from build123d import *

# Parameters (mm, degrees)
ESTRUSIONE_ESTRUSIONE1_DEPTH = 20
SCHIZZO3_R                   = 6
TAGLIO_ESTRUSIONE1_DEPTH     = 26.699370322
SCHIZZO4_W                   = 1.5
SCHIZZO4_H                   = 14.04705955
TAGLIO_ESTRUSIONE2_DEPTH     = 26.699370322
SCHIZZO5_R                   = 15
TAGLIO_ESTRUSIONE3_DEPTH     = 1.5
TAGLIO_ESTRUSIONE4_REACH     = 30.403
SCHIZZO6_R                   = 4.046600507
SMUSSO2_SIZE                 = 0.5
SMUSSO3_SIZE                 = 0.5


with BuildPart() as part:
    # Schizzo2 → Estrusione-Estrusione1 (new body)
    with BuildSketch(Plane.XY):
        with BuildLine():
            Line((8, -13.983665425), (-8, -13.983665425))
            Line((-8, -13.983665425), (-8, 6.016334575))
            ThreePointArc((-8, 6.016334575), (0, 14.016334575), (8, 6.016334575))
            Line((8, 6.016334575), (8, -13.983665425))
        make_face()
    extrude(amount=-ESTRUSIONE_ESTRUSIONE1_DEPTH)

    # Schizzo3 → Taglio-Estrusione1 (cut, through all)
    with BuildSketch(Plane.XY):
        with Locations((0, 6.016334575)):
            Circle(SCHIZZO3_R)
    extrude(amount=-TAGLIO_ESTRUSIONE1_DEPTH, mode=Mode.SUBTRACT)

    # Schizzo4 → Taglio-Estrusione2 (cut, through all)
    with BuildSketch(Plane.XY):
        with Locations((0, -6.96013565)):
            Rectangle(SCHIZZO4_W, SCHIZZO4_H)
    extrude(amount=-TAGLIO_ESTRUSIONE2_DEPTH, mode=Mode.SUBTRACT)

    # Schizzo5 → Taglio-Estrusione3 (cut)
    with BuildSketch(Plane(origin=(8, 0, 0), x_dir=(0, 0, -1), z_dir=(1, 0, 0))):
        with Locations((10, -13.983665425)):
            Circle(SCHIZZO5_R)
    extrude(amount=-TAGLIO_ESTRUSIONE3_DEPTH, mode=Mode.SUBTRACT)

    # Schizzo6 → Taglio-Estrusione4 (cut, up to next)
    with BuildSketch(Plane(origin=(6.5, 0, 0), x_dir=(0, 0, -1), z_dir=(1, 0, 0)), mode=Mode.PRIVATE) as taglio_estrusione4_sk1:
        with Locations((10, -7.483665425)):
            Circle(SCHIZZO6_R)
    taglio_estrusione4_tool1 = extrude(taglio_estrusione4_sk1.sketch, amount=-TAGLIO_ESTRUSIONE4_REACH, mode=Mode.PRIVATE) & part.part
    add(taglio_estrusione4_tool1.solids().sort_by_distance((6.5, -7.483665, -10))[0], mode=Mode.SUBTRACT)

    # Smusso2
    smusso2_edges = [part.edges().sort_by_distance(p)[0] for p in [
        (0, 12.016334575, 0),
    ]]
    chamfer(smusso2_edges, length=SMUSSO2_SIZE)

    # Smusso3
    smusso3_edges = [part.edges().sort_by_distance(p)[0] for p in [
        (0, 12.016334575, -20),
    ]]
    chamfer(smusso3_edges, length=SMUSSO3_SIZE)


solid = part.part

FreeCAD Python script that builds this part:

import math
import FreeCAD as App
import Part
import Sketcher

V = App.Vector
Q = App.Units.Quantity


def edges_at(feature, points):
    """Names of the edges that pass closest to the given points."""
    edges = feature.Shape.Edges
    near = lambda p: min(range(len(edges)), key=lambda i: edges[i].distToShape(Part.Vertex(*p))[0])
    return sorted({f"Edge{near(p) + 1}" for p in points})


def add_polygon(sketch, points):
    """Adds a closed chain of lines whose ends are joined by coincident constraints."""
    first, n = sketch.GeometryCount, len(points)
    for a, b in zip(points, points[1:] + points[:1]):
        sketch.addGeometry(Part.LineSegment(App.Vector(*a, 0), App.Vector(*b, 0)), False)
    for i in range(n):
        sketch.addConstraint(Sketcher.Constraint("Coincident", first + i, 2, first + (i + 1) % n, 1))

doc = App.newDocument("Part")
body = doc.addObject("PartDesign::Body", "Body")

sketch1 = body.newObject("Sketcher::SketchObject", "Sketch")
sketch1.AttachmentSupport = (doc.getObject("XY_Plane"), [""])
sketch1.MapMode = "FlatFace"
sketch1.addGeometry([
    Part.LineSegment(V(-8, -14, 0), V(8, -14, 0)),
    Part.LineSegment(V(8, -14, 0), V(8, 6, 0)),
    Part.ArcOfCircle(Part.Circle(V(0, 6, 0), V(0, 0, 1), 8), math.radians(0), math.radians(180)),
    Part.LineSegment(V(-8, 6, 0), V(-8, -14, 0)),
], False)
sketch1.addConstraint([
    Sketcher.Constraint("Coincident", 0, 2, 1, 1),
    Sketcher.Constraint("Tangent", 1, 2, 2, 1),
    Sketcher.Constraint("Tangent", 2, 2, 3, 1),
    Sketcher.Constraint("Coincident", 3, 2, 0, 1),
    Sketcher.Constraint("Horizontal", 0),
    Sketcher.Constraint("Vertical", 1),
    Sketcher.Constraint("Vertical", 3),
    Sketcher.Constraint("PointOnObject", 2, 3, -2),
    Sketcher.Constraint("Radius", 2, Q("8 mm")),
    Sketcher.Constraint("DistanceY", 1, 1, 1, 2, Q("20 mm")),
    Sketcher.Constraint("DistanceY", -1, 1, 2, 3, Q("6.016335 mm")),
])
pad1 = body.newObject("PartDesign::Pad", "Pad")
pad1.Profile = sketch1
pad1.Length = 20
pad1.Reversed = True

sketch2 = body.newObject("Sketcher::SketchObject", "Sketch001")
sketch2.AttachmentSupport = (doc.getObject("XY_Plane"), [""])
sketch2.MapMode = "FlatFace"
sketch2.addGeometry(Part.Circle(V(0, 6, 0), V(0, 0, 1), 6), False)
sketch2.addConstraint([
    Sketcher.Constraint("PointOnObject", 0, 3, -2),
    Sketcher.Constraint("Diameter", 0, Q("12 mm")),
    Sketcher.Constraint("DistanceY", -1, 1, 0, 3, Q("6.016335 mm")),
])
pocket1 = body.newObject("PartDesign::Pocket", "Pocket")
pocket1.Profile = sketch2
pocket1.Type = "ThroughAll"

sketch3 = body.newObject("Sketcher::SketchObject", "Sketch002")
sketch3.AttachmentSupport = (doc.getObject("XY_Plane"), [""])
sketch3.MapMode = "FlatFace"
add_polygon(sketch3, [(-0.8, 0.1), (-0.8, -14), (0.8, -14), (0.8, 0.1)])
sketch3.addConstraint([
    Sketcher.Constraint("Vertical", 0),
    Sketcher.Constraint("Horizontal", 1),
    Sketcher.Constraint("Vertical", 2),
    Sketcher.Constraint("Horizontal", 3),
    Sketcher.Constraint("DistanceX", 1, 1, 1, 2, Q("1.5 mm")),
    Sketcher.Constraint("DistanceX", 0, 2, -1, 1, Q("0.75 mm")),
    Sketcher.Constraint("DistanceY", 0, 2, 0, 1, Q("14.04706 mm")),
    Sketcher.Constraint("DistanceY", 0, 2, -1, 1, Q("13.983665 mm")),
])
pocket2 = body.newObject("PartDesign::Pocket", "Pocket001")
pocket2.Profile = sketch3
pocket2.Type = "ThroughAll"

sketch4 = body.newObject("Sketcher::SketchObject", "Sketch003")
sketch4.AttachmentSupport = (doc.getObject("YZ_Plane"), [""])
sketch4.MapMode = "FlatFace"
sketch4.AttachmentOffset = App.Placement(V(0, 0, 8), App.Rotation())
sketch4.addGeometry(Part.Circle(V(-14, -10, 0), V(0, 0, 1), 15), False)
sketch4.addConstraint([
    Sketcher.Constraint("Diameter", 0, Q("30 mm")),
    Sketcher.Constraint("DistanceY", 0, 3, -1, 1, Q("10 mm")),
    Sketcher.Constraint("DistanceX", 0, 3, -1, 1, Q("13.983665 mm")),
])
pocket3 = body.newObject("PartDesign::Pocket", "Pocket002")
pocket3.Profile = sketch4
pocket3.Length = 1.5

sketch5 = body.newObject("Sketcher::SketchObject", "Sketch004")
sketch5.AttachmentSupport = (doc.getObject("YZ_Plane"), [""])
sketch5.MapMode = "FlatFace"
sketch5.AttachmentOffset = App.Placement(V(0, 0, 6.5), App.Rotation())
sketch5.addGeometry(Part.Circle(V(-7.5, -10, 0), V(0, 0, 1), 4), False)
sketch5.addConstraint([
    Sketcher.Constraint("DistanceY", 0, 3, -1, 1, Q("10 mm")),
    Sketcher.Constraint("Diameter", 0, Q("8.093201 mm")),
    Sketcher.Constraint("DistanceX", 0, 3, -1, 1, Q("7.483665 mm")),
])
pocket4 = body.newObject("PartDesign::Pocket", "Pocket003")
pocket4.Profile = sketch5
pocket4.Type = "UpToFirst"
doc.recompute()

chamfer = body.newObject("PartDesign::Chamfer", "Chamfer")
chamfer.Base = (pocket4, edges_at(pocket4, [(0, 12.016, 0)]))
chamfer.Size = 0.5
doc.recompute()

chamfer2 = body.newObject("PartDesign::Chamfer", "Chamfer001")
chamfer2.Base = (chamfer, edges_at(chamfer, [(0, 12.016, -20)]))
chamfer2.Size = 0.5

doc.recompute()
